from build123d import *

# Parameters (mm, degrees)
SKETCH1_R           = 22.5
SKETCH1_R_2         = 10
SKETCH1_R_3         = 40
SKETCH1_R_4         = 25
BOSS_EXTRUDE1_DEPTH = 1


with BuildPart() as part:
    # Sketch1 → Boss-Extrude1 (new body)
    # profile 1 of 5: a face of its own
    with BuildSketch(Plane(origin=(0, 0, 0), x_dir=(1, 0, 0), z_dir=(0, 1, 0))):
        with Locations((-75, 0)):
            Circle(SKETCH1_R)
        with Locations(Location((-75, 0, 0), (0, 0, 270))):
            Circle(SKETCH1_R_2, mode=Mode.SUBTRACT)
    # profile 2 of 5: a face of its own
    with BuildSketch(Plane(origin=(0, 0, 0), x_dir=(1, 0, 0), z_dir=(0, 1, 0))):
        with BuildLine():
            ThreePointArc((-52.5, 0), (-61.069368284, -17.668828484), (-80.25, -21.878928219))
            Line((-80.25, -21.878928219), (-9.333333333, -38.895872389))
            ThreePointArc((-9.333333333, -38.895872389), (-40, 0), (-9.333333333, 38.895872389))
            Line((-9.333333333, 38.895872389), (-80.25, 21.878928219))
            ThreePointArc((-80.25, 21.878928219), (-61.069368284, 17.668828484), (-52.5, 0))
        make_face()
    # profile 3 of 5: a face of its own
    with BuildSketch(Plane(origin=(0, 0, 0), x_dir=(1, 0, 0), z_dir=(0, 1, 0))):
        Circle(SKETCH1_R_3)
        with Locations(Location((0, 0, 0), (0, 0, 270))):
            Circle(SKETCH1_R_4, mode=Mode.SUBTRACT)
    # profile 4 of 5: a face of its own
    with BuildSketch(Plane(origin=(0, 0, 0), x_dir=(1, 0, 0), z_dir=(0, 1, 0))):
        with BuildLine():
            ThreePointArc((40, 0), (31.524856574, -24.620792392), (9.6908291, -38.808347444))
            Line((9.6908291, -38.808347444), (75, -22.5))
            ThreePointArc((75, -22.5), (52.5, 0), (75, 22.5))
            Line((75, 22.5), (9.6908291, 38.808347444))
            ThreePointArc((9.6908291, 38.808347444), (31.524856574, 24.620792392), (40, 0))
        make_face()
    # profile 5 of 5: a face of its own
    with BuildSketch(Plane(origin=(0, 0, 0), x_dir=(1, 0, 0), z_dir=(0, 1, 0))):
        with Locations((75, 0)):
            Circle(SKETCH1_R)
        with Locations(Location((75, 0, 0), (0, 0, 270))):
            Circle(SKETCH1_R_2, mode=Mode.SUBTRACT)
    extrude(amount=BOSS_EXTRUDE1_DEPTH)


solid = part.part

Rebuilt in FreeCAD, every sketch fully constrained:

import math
import FreeCAD as App
import Part
import Sketcher
Q = App.Units.Quantity

doc = App.newDocument("Part")
params = doc.addObject("Spreadsheet::Sheet", "Params")
for row, (alias, value) in enumerate([
    ("sketch1_diameter", "20 mm"),
    ("sketch1_diameter2", "50 mm"),
    ("sketch1_radius", "40 mm"),
    ("sketch1_radius2", "22.5 mm"),
    ("pad1_length", "1 mm"),
], start=1):
    params.set(f"A{row}", alias)
    params.set(f"B{row}", "=" + value)
    params.setAlias(f"B{row}", alias)

body = doc.addObject("PartDesign::Body", "Body")

sketch1 = body.newObject("Sketcher::SketchObject", "Sketch")
sketch1.AttachmentSupport = (doc.getObject("XZ_Plane"), [""])
sketch1.MapMode = "FlatFace"
sketch1.addGeometry([
    Part.ArcOfCircle(Part.Circle(App.Vector(-75, 0, 0), App.Vector(0, 0, 1), 22), math.radians(103), math.radians(257)),
    Part.LineSegment(App.Vector(-80, 22, 0), App.Vector(-9, 39, 0)),
    Part.ArcOfCircle(Part.Circle(App.Vector(0, 0, 0), App.Vector(0, 0, 1), 40), math.radians(76), math.radians(103)),
    Part.LineSegment(App.Vector(10, 39, 0), App.Vector(75, 22, 0)),
    Part.ArcOfCircle(Part.Circle(App.Vector(75, 0, 0), App.Vector(0, 0, 1), 22), math.radians(-90), math.radians(90)),
    Part.LineSegment(App.Vector(75, -22, 0), App.Vector(10, -39, 0)),
    Part.ArcOfCircle(Part.Circle(App.Vector(0, 0, 0), App.Vector(0, 0, 1), 40), math.radians(-103), math.radians(-76)),
    Part.LineSegment(App.Vector(-9, -39, 0), App.Vector(-80, -22, 0)),
    Part.Circle(App.Vector(-75, 0, 0), App.Vector(0, 0, 1), 10),
    Part.Circle(App.Vector(0, 0, 0), App.Vector(0, 0, 1), 25),
    Part.Circle(App.Vector(75, 0, 0), App.Vector(0, 0, 1), 10),
], False)
sketch1.addConstraint([
    Sketcher.Constraint("Tangent", 0, 1, 1, 1),
    Sketcher.Constraint("Tangent", 1, 2, 2, 2),
    Sketcher.Constraint("Tangent", 2, 1, 3, 1),
    Sketcher.Constraint("Coincident", 3, 2, 4, 2),
    Sketcher.Constraint("Coincident", 4, 1, 5, 1),
    Sketcher.Constraint("Tangent", 5, 2, 6, 2),
    Sketcher.Constraint("Tangent", 6, 1, 7, 1),
    Sketcher.Constraint("Tangent", 7, 2, 0, 2),
    Sketcher.Constraint("Coincident", 2, 3, -1, 1),
    Sketcher.Constraint("Coincident", 6, 3, -1, 1),
    Sketcher.Constraint("Coincident", 9, 3, -1, 1),
    Sketcher.Constraint("Coincident", 8, 3, 0, 3),
    Sketcher.Constraint("Coincident", 10, 3, 4, 3),
    Sketcher.Constraint("Equal", 0, 4),
    Sketcher.Constraint("Equal", 2, 6),
    Sketcher.Constraint("Equal", 8, 10),
    Sketcher.Constraint("Symmetric", 0, 3, 4, 3, -1, 1),
    Sketcher.Constraint("Symmetric", 3, 2, 4, 1, -1),
    Sketcher.Constraint("Vertical", 10, 3, 3, 2),
    Sketcher.Constraint("Diameter", 8, Q("20 mm")),
    Sketcher.Constraint("Diameter", 9, Q("50 mm")),
    Sketcher.Constraint("Radius", 2, Q("40 mm")),
    Sketcher.Constraint("Radius", 0, Q("22.5 mm")),
    Sketcher.Constraint("DistanceX", 0, 3, -1, 1, Q("75 mm")),
])
sketch1.setExpression("Constraints[19]", "Params.sketch1_diameter")
sketch1.setExpression("Constraints[20]", "Params.sketch1_diameter2")
sketch1.setExpression("Constraints[21]", "Params.sketch1_radius")
sketch1.setExpression("Constraints[22]", "Params.sketch1_radius2")
pad1 = body.newObject("PartDesign::Pad", "Pad")
pad1.Profile = sketch1
pad1.setExpression("Length", "Params.pad1_length")
pad1.Reversed = True

doc.recompute()
